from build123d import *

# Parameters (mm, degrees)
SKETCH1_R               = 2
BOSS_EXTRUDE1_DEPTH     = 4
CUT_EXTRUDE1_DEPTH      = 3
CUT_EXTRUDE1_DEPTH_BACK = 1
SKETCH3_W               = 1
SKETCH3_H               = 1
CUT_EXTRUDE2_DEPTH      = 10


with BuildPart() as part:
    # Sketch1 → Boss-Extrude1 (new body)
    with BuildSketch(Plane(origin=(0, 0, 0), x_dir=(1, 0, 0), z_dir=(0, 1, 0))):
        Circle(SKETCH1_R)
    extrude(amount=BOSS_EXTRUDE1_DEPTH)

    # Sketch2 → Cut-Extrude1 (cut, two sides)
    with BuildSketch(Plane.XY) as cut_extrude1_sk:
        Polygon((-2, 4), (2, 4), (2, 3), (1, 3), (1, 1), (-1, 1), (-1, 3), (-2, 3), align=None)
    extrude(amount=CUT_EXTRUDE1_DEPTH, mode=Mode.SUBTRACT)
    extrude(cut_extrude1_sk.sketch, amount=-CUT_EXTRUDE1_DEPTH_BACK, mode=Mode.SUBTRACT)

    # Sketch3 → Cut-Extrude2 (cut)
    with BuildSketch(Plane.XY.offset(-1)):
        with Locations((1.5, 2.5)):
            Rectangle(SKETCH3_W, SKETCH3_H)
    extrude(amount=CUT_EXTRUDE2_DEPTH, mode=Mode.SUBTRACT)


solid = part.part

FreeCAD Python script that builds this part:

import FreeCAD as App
import Part
import Sketcher

V = App.Vector
Q = App.Units.Quantity


def add_polygon(sketch, points):
    """Adds a closed chain of lines whose ends are joined by coincident constraints."""
    first, n = sketch.GeometryCount, len(points)
    for a, b in zip(points, points[1:] + points[:1]):
        sketch.addGeometry(Part.LineSegment(App.Vector(*a, 0), App.Vector(*b, 0)), False)
    for i in range(n):
        sketch.addConstraint(Sketcher.Constraint("Coincident", first + i, 2, first + (i + 1) % n, 1))

doc = App.newDocument("Part")
body = doc.addObject("PartDesign::Body", "Body")

sketch1 = doc.addObject("Sketcher::SketchObject", "Sketch")
body.addObject(sketch1)
sketch1.AttachmentSupport = (doc.XZ_Plane, [""])
sketch1.MapMode = "FlatFace"
sketch1.addGeometry(Part.Circle(V(0, 0, 0), V(0, 0, 1), 2), False)
sketch1.addConstraint([
    Sketcher.Constraint("Coincident", 0, 3, -1, 1),
    Sketcher.Constraint("Diameter", 0, Q("4 mm")),
])
pad1 = doc.addObject("PartDesign::Pad", "Pad")
body.addObject(pad1)
pad1.Profile = sketch1
pad1.Length = 4
pad1.Reversed = True

sketch2 = doc.addObject("Sketcher::SketchObject", "Sketch001")
body.addObject(sketch2)
sketch2.AttachmentSupport = (doc.XY_Plane, [""])
sketch2.MapMode = "FlatFace"
add_polygon(sketch2, [(2, 4), (-2, 4), (-2, 3), (-1, 3), (-1, 1), (1, 1), (1, 3), (2, 3)])
sketch2.addConstraint([
    Sketcher.Constraint("Horizontal", 0),
    Sketcher.Constraint("Vertical", 1),
    Sketcher.Constraint("Horizontal", 2),
    Sketcher.Constraint("Vertical", 3),
    Sketcher.Constraint("Horizontal", 4),
    Sketcher.Constraint("Vertical", 5),
    Sketcher.Constraint("Horizontal", 6),
    Sketcher.Constraint("Vertical", 7),
    Sketcher.Constraint("Symmetric", 2, 2, 5, 2, -2),
    Sketcher.Constraint("Equal", 2, 6),
    Sketcher.Constraint("Equal", 6, 1),
    Sketcher.Constraint("Equal", 4, 3),
    Sketcher.Constraint("DistanceX", 0, 2, 0, 1, Q("4 mm")),
    Sketcher.Constraint("DistanceX", 2, 1, 2, 2, Q("1 mm")),
    Sketcher.Constraint("DistanceY", -1, 1, 0, 2, Q("4 mm")),
])
pocket1 = doc.addObject("PartDesign::Pocket", "Pocket")
body.addObject(pocket1)
pocket1.Profile = sketch2
pocket1.Type = "TwoLengths"
pocket1.Length = 3
pocket1.Length2 = 1
pocket1.Reversed = True

sketch3 = doc.addObject("Sketcher::SketchObject", "Sketch002")
body.addObject(sketch3)
sketch3.AttachmentSupport = (doc.XY_Plane, [""])
sketch3.MapMode = "FlatFace"
sketch3.AttachmentOffset = App.Placement(V(0, 0, -1), App.Rotation())
add_polygon(sketch3, [(1, 3), (1, 2), (2, 2), (2, 3)])
sketch3.addConstraint([
    Sketcher.Constraint("Vertical", 0),
    Sketcher.Constraint("Horizontal", 1),
    Sketcher.Constraint("Vertical", 2),
    Sketcher.Constraint("Horizontal", 3),
    Sketcher.Constraint("Equal", 3, 0),
    Sketcher.Constraint("DistanceX", 1, 1, 1, 2, Q("1 mm")),
    Sketcher.Constraint("DistanceX", -1, 1, 0, 2, Q("1 mm")),
    Sketcher.Constraint("DistanceY", -1, 1, 0, 2, Q("2 mm")),
])
pocket2 = doc.addObject("PartDesign::Pocket", "Pocket001")
body.addObject(pocket2)
pocket2.Profile = sketch3
pocket2.Length = 10
pocket2.Reversed = True

doc.recompute()
